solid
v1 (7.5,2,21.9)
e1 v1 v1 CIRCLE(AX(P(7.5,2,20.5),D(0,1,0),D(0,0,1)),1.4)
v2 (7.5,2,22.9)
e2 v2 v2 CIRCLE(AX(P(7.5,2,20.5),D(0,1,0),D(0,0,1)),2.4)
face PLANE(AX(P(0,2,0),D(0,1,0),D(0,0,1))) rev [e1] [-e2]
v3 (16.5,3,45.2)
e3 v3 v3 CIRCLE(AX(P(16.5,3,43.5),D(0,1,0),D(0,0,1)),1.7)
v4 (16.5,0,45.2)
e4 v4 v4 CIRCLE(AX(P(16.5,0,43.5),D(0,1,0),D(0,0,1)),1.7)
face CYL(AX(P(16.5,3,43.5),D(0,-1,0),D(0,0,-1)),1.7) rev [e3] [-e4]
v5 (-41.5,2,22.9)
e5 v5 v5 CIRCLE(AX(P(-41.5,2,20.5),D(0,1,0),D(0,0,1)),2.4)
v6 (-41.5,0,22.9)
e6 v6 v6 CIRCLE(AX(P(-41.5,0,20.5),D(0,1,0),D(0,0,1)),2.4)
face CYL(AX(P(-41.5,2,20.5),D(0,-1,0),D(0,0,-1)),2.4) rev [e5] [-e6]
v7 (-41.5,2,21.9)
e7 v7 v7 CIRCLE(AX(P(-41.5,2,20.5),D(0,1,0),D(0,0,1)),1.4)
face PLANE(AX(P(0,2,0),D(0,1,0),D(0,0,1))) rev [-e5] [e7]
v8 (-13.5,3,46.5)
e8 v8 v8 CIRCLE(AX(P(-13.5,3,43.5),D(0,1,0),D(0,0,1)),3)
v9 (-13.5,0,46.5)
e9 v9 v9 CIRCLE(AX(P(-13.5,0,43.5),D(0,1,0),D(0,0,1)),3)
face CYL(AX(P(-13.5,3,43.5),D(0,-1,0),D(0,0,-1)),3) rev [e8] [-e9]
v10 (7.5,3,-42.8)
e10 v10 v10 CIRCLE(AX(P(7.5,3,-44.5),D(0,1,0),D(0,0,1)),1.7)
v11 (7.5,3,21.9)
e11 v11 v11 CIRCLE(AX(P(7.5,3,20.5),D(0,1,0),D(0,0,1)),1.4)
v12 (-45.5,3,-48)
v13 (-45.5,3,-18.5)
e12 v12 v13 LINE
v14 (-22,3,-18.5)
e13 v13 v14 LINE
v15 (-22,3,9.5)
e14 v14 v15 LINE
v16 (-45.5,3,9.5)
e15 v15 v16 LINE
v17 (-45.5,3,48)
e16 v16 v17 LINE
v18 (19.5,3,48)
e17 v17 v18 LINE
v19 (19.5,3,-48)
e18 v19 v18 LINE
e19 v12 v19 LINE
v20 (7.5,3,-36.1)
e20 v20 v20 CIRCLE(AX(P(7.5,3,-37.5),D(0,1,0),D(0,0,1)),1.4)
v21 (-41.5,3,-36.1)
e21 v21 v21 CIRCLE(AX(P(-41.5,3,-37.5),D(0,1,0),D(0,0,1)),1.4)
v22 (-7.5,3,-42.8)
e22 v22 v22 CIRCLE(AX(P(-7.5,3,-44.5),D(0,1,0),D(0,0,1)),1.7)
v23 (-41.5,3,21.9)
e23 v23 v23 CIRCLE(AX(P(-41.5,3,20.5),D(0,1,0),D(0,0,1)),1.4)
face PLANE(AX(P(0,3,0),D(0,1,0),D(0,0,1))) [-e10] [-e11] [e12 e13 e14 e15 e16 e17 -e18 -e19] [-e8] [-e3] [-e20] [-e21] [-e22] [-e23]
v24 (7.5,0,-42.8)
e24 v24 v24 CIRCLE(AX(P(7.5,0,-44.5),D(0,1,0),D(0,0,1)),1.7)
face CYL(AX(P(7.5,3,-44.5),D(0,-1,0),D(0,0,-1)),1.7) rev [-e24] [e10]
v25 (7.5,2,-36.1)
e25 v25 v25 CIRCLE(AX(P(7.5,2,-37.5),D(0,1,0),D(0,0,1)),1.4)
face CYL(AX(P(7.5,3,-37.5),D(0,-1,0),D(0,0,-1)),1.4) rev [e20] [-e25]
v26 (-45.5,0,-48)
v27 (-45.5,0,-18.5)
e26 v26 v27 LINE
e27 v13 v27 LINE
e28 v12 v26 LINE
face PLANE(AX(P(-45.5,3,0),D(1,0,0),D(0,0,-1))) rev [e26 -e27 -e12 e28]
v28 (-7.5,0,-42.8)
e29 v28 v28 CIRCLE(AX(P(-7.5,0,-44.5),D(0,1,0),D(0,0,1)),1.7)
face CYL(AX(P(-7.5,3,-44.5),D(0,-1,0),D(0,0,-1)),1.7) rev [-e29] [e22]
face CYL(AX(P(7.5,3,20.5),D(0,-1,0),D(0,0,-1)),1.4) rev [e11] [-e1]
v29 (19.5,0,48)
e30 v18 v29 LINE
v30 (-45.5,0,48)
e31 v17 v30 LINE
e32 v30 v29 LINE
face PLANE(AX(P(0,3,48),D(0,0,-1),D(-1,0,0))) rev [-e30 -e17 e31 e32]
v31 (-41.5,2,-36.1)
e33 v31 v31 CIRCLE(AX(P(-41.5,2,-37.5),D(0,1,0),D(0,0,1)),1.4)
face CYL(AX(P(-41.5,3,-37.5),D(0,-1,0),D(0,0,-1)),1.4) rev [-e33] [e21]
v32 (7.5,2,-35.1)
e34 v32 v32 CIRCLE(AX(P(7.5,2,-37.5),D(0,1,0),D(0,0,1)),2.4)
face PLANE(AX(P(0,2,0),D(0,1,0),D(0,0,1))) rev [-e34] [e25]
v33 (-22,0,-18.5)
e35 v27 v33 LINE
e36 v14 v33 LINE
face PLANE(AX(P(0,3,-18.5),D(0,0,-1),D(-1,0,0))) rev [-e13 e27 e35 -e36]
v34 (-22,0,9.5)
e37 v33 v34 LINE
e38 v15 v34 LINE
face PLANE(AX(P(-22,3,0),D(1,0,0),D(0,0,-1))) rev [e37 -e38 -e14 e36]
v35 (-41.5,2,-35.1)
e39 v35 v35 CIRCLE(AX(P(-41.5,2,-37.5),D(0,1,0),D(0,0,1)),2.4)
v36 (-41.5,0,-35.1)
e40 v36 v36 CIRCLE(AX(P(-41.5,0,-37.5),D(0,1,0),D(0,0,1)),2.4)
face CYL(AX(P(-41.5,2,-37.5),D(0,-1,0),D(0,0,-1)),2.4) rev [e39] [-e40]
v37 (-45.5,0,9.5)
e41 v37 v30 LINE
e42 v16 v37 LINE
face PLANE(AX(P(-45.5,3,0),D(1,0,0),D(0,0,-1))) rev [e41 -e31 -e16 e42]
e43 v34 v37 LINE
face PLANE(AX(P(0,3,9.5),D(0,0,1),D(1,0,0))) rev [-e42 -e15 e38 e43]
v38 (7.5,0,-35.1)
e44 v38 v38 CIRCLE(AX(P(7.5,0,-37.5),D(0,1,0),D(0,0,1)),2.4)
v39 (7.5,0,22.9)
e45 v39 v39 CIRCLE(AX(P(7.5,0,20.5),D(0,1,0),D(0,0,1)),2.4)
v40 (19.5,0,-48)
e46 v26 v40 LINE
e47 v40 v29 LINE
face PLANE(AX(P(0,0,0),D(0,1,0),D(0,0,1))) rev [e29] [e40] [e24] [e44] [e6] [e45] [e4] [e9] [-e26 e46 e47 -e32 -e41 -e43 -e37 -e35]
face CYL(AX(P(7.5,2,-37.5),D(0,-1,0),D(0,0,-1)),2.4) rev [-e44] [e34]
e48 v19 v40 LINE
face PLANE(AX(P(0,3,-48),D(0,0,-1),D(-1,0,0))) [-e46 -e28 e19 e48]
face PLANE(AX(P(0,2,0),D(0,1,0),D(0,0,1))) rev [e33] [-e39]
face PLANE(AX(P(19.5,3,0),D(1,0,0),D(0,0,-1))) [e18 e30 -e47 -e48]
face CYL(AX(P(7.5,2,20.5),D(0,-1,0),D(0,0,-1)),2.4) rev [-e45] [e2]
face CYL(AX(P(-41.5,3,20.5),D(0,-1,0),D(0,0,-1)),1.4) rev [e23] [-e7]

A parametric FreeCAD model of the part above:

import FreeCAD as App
import Part
import Sketcher
Q = App.Units.Quantity


def add_polygon(sketch, points):
    """Adds a closed chain of lines whose ends are joined by coincident constraints."""
    first, n = sketch.GeometryCount, len(points)
    for a, b in zip(points, points[1:] + points[:1]):
        sketch.addGeometry(Part.LineSegment(App.Vector(*a, 0), App.Vector(*b, 0)), False)
    for i in range(n):
        sketch.addConstraint(Sketcher.Constraint("Coincident", first + i, 2, first + (i + 1) % n, 1))

doc = App.newDocument("Part")
params = doc.addObject("Spreadsheet::Sheet", "Params")
for row, (alias, value) in enumerate([
    ("sketch1_diameter", "6 mm"),
    ("sketch1_diameter2", "2.8 mm"),
    ("sketch1_diameter3", "3.4 mm"),
    ("sketch1_width", "65 mm"),
    ("sketch1_height", "28 mm"),
    ("pad1_length", "3 mm"),
    ("sketch2_diameter", "4.8 mm"),
    ("sketch2_diameter2", "2.8 mm"),
    ("pocket1_length", "2 mm"),
], start=1):
    params.set(f"A{row}", alias)
    params.set(f"B{row}", "=" + value)
    params.setAlias(f"B{row}", alias)

body = doc.addObject("PartDesign::Body", "Body")

# Sketch on XZ plane
sketch1 = doc.addObject("Sketcher::SketchObject", "Sketch")
body.addObject(sketch1)
sketch1.AttachmentSupport = (doc.XZ_Plane, [""])
sketch1.MapMode = "FlatFace"
add_polygon(sketch1, [(19.5, -48), (-45.5, -48), (-45.5, -18.5), (-22, -18.5), (-22, 9.5), (-45.5, 9.5), (-45.5, 48), (19.5, 48)])  # lines 0-7
sketch1.addGeometry(Part.Circle(App.Vector(-13.5, 43.5, 0), App.Vector(0, 0, 1), 3), False)  # 8
sketch1.addGeometry(Part.Circle(App.Vector(-41.5, 20.5, 0), App.Vector(0, 0, 1), 1.4), False)  # 9
sketch1.addGeometry(Part.Circle(App.Vector(16.5, 43.5, 0), App.Vector(0, 0, 1), 1.7), False)  # 10
sketch1.addGeometry(Part.Circle(App.Vector(7.5, 20.5, 0), App.Vector(0, 0, 1), 1.4), False)  # 11
sketch1.addGeometry(Part.Circle(App.Vector(-41.5, -37.5, 0), App.Vector(0, 0, 1), 1.4), False)  # 12
sketch1.addGeometry(Part.Circle(App.Vector(-7.5, -44.5, 0), App.Vector(0, 0, 1), 1.7), False)  # 13
sketch1.addGeometry(Part.Circle(App.Vector(7.5, -37.5, 0), App.Vector(0, 0, 1), 1.4), False)  # 14
sketch1.addGeometry(Part.Circle(App.Vector(7.5, -44.5, 0), App.Vector(0, 0, 1), 1.7), False)  # 15
sketch1.addConstraint([
    Sketcher.Constraint("Horizontal", 0),
    Sketcher.Constraint("Vertical", 1),
    Sketcher.Constraint("Horizontal", 2),
    Sketcher.Constraint("Vertical", 3),
    Sketcher.Constraint("Horizontal", 4),
    Sketcher.Constraint("Vertical", 5),
    Sketcher.Constraint("Horizontal", 6),
    Sketcher.Constraint("Vertical", 7),
    Sketcher.Constraint("Equal", 9, 11),
    Sketcher.Constraint("Equal", 11, 12),
    Sketcher.Constraint("Equal", 10, 13),
    Sketcher.Constraint("Equal", 12, 14),
    Sketcher.Constraint("Equal", 13, 15),
    Sketcher.Constraint("Symmetric", 13, 3, 15, 3, -2),
    Sketcher.Constraint("Symmetric", 0, 2, 5, 2, -1),
    Sketcher.Constraint("Horizontal", 8, 3, 10, 3),
    Sketcher.Constraint("Horizontal", 9, 3, 11, 3),
    Sketcher.Constraint("Horizontal", 12, 3, 14, 3),
    Sketcher.Constraint("Vertical", 9, 3, 12, 3),
    Sketcher.Constraint("Vertical", 11, 3, 14, 3),
    Sketcher.Constraint("Vertical", 14, 3, 15, 3),
    Sketcher.Constraint("Diameter", 8, Q("6 mm")),
    Sketcher.Constraint("Diameter", 9, Q("2.8 mm")),
    Sketcher.Constraint("Diameter", 10, Q("3.4 mm")),
    Sketcher.Constraint("DistanceX", 0, 2, 0, 1, Q("65 mm")),
    Sketcher.Constraint("DistanceY", 3, 1, 3, 2, Q("28 mm")),
    Sketcher.Constraint("DistanceY", 7, 2, 7, 1, Q("96 mm")),
    Sketcher.Constraint("DistanceX", 2, 1, 2, 2, Q("23.5 mm")),
    Sketcher.Constraint("DistanceY", 1, 1, 1, 2, Q("29.5 mm")),
    Sketcher.Constraint("DistanceX", 2, 2, -1, 1, Q("22 mm")),
    Sketcher.Constraint("DistanceX", 9, 3, 8, 3, Q("28 mm")),
    Sketcher.Constraint("DistanceY", 9, 3, 8, 3, Q("23 mm")),
    Sketcher.Constraint("DistanceX", 8, 3, 10, 3, Q("30 mm")),
    Sketcher.Constraint("DistanceX", 11, 3, 10, 3, Q("9 mm")),
    Sketcher.Constraint("DistanceY", 12, 3, 9, 3, Q("58 mm")),
    Sketcher.Constraint("DistanceX", 12, 3, 13, 3, Q("34 mm")),
    Sketcher.Constraint("DistanceY", 13, 3, 12, 3, Q("7 mm")),
    Sketcher.Constraint("DistanceY", 12, 3, 1, 2, Q("19 mm")),
])
sketch1.setExpression("Constraints[29]", "Params.sketch1_diameter")
sketch1.setExpression("Constraints[30]", "Params.sketch1_diameter2")
sketch1.setExpression("Constraints[31]", "Params.sketch1_diameter3")
sketch1.setExpression("Constraints[32]", "Params.sketch1_width")
sketch1.setExpression("Constraints[33]", "Params.sketch1_height")
pad1 = doc.addObject("PartDesign::Pad", "Pad")
body.addObject(pad1)
pad1.Profile = sketch1
pad1.setExpression("Length", "Params.pad1_length")
pad1.Reversed = True

# Sketch on XZ plane
sketch2 = doc.addObject("Sketcher::SketchObject", "Sketch001")
body.addObject(sketch2)
sketch2.AttachmentSupport = (doc.XZ_Plane, [""])
sketch2.MapMode = "FlatFace"
sketch2.addGeometry([
    Part.Circle(App.Vector(-41.5, 20.5, 0), App.Vector(0, 0, 1), 2.4),  # 0
    Part.Circle(App.Vector(-41.5, 20.5, 0), App.Vector(0, 0, 1), 1.4),  # 1
    Part.Circle(App.Vector(7.5, 20.5, 0), App.Vector(0, 0, 1), 2.4),  # 2
    Part.Circle(App.Vector(7.5, 20.5, 0), App.Vector(0, 0, 1), 1.4),  # 3
    Part.Circle(App.Vector(7.5, -37.5, 0), App.Vector(0, 0, 1), 2.4),  # 4
    Part.Circle(App.Vector(7.5, -37.5, 0), App.Vector(0, 0, 1), 1.4),  # 5
    Part.Circle(App.Vector(-41.5, -37.5, 0), App.Vector(0, 0, 1), 2.4),  # 6
    Part.Circle(App.Vector(-41.5, -37.5, 0), App.Vector(0, 0, 1), 1.4),  # 7
], False)
sketch2.addConstraint([
    Sketcher.Constraint("Coincident", 1, 3, 0, 3),
    Sketcher.Constraint("Coincident", 3, 3, 2, 3),
    Sketcher.Constraint("Coincident", 5, 3, 4, 3),
    Sketcher.Constraint("Coincident", 7, 3, 6, 3),
    Sketcher.Constraint("Equal", 0, 2),
    Sketcher.Constraint("Equal", 1, 3),
    Sketcher.Constraint("Equal", 2, 4),
    Sketcher.Constraint("Equal", 3, 5),
    Sketcher.Constraint("Equal", 4, 6),
    Sketcher.Constraint("Equal", 5, 7),
    Sketcher.Constraint("Horizontal", 1, 3, 2, 3),
    Sketcher.Constraint("Horizontal", 5, 3, 6, 3),
    Sketcher.Constraint("Vertical", 3, 3, 4, 3),
    Sketcher.Constraint("Vertical", 1, 3, 6, 3),
    Sketcher.Constraint("Diameter", 0, Q("4.8 mm")),
    Sketcher.Constraint("Diameter", 1, Q("2.8 mm")),
    Sketcher.Constraint("DistanceX", 0, 3, 2, 3, Q("49 mm")),
    Sketcher.Constraint("DistanceY", 4, 3, 2, 3, Q("58 mm")),
    Sketcher.Constraint("DistanceX", 0, 3, -1, 1, Q("41.5 mm")),
    Sketcher.Constraint("DistanceY", -1, 1, 0, 3, Q("20.5 mm")),
])
sketch2.setExpression("Constraints[14]", "Params.sketch2_diameter")
sketch2.setExpression("Constraints[15]", "Params.sketch2_diameter2")
pocket1 = doc.addObject("PartDesign::Pocket", "Pocket")
body.addObject(pocket1)
pocket1.Profile = sketch2
pocket1.setExpression("Length", "Params.pocket1_length")

doc.recompute()
